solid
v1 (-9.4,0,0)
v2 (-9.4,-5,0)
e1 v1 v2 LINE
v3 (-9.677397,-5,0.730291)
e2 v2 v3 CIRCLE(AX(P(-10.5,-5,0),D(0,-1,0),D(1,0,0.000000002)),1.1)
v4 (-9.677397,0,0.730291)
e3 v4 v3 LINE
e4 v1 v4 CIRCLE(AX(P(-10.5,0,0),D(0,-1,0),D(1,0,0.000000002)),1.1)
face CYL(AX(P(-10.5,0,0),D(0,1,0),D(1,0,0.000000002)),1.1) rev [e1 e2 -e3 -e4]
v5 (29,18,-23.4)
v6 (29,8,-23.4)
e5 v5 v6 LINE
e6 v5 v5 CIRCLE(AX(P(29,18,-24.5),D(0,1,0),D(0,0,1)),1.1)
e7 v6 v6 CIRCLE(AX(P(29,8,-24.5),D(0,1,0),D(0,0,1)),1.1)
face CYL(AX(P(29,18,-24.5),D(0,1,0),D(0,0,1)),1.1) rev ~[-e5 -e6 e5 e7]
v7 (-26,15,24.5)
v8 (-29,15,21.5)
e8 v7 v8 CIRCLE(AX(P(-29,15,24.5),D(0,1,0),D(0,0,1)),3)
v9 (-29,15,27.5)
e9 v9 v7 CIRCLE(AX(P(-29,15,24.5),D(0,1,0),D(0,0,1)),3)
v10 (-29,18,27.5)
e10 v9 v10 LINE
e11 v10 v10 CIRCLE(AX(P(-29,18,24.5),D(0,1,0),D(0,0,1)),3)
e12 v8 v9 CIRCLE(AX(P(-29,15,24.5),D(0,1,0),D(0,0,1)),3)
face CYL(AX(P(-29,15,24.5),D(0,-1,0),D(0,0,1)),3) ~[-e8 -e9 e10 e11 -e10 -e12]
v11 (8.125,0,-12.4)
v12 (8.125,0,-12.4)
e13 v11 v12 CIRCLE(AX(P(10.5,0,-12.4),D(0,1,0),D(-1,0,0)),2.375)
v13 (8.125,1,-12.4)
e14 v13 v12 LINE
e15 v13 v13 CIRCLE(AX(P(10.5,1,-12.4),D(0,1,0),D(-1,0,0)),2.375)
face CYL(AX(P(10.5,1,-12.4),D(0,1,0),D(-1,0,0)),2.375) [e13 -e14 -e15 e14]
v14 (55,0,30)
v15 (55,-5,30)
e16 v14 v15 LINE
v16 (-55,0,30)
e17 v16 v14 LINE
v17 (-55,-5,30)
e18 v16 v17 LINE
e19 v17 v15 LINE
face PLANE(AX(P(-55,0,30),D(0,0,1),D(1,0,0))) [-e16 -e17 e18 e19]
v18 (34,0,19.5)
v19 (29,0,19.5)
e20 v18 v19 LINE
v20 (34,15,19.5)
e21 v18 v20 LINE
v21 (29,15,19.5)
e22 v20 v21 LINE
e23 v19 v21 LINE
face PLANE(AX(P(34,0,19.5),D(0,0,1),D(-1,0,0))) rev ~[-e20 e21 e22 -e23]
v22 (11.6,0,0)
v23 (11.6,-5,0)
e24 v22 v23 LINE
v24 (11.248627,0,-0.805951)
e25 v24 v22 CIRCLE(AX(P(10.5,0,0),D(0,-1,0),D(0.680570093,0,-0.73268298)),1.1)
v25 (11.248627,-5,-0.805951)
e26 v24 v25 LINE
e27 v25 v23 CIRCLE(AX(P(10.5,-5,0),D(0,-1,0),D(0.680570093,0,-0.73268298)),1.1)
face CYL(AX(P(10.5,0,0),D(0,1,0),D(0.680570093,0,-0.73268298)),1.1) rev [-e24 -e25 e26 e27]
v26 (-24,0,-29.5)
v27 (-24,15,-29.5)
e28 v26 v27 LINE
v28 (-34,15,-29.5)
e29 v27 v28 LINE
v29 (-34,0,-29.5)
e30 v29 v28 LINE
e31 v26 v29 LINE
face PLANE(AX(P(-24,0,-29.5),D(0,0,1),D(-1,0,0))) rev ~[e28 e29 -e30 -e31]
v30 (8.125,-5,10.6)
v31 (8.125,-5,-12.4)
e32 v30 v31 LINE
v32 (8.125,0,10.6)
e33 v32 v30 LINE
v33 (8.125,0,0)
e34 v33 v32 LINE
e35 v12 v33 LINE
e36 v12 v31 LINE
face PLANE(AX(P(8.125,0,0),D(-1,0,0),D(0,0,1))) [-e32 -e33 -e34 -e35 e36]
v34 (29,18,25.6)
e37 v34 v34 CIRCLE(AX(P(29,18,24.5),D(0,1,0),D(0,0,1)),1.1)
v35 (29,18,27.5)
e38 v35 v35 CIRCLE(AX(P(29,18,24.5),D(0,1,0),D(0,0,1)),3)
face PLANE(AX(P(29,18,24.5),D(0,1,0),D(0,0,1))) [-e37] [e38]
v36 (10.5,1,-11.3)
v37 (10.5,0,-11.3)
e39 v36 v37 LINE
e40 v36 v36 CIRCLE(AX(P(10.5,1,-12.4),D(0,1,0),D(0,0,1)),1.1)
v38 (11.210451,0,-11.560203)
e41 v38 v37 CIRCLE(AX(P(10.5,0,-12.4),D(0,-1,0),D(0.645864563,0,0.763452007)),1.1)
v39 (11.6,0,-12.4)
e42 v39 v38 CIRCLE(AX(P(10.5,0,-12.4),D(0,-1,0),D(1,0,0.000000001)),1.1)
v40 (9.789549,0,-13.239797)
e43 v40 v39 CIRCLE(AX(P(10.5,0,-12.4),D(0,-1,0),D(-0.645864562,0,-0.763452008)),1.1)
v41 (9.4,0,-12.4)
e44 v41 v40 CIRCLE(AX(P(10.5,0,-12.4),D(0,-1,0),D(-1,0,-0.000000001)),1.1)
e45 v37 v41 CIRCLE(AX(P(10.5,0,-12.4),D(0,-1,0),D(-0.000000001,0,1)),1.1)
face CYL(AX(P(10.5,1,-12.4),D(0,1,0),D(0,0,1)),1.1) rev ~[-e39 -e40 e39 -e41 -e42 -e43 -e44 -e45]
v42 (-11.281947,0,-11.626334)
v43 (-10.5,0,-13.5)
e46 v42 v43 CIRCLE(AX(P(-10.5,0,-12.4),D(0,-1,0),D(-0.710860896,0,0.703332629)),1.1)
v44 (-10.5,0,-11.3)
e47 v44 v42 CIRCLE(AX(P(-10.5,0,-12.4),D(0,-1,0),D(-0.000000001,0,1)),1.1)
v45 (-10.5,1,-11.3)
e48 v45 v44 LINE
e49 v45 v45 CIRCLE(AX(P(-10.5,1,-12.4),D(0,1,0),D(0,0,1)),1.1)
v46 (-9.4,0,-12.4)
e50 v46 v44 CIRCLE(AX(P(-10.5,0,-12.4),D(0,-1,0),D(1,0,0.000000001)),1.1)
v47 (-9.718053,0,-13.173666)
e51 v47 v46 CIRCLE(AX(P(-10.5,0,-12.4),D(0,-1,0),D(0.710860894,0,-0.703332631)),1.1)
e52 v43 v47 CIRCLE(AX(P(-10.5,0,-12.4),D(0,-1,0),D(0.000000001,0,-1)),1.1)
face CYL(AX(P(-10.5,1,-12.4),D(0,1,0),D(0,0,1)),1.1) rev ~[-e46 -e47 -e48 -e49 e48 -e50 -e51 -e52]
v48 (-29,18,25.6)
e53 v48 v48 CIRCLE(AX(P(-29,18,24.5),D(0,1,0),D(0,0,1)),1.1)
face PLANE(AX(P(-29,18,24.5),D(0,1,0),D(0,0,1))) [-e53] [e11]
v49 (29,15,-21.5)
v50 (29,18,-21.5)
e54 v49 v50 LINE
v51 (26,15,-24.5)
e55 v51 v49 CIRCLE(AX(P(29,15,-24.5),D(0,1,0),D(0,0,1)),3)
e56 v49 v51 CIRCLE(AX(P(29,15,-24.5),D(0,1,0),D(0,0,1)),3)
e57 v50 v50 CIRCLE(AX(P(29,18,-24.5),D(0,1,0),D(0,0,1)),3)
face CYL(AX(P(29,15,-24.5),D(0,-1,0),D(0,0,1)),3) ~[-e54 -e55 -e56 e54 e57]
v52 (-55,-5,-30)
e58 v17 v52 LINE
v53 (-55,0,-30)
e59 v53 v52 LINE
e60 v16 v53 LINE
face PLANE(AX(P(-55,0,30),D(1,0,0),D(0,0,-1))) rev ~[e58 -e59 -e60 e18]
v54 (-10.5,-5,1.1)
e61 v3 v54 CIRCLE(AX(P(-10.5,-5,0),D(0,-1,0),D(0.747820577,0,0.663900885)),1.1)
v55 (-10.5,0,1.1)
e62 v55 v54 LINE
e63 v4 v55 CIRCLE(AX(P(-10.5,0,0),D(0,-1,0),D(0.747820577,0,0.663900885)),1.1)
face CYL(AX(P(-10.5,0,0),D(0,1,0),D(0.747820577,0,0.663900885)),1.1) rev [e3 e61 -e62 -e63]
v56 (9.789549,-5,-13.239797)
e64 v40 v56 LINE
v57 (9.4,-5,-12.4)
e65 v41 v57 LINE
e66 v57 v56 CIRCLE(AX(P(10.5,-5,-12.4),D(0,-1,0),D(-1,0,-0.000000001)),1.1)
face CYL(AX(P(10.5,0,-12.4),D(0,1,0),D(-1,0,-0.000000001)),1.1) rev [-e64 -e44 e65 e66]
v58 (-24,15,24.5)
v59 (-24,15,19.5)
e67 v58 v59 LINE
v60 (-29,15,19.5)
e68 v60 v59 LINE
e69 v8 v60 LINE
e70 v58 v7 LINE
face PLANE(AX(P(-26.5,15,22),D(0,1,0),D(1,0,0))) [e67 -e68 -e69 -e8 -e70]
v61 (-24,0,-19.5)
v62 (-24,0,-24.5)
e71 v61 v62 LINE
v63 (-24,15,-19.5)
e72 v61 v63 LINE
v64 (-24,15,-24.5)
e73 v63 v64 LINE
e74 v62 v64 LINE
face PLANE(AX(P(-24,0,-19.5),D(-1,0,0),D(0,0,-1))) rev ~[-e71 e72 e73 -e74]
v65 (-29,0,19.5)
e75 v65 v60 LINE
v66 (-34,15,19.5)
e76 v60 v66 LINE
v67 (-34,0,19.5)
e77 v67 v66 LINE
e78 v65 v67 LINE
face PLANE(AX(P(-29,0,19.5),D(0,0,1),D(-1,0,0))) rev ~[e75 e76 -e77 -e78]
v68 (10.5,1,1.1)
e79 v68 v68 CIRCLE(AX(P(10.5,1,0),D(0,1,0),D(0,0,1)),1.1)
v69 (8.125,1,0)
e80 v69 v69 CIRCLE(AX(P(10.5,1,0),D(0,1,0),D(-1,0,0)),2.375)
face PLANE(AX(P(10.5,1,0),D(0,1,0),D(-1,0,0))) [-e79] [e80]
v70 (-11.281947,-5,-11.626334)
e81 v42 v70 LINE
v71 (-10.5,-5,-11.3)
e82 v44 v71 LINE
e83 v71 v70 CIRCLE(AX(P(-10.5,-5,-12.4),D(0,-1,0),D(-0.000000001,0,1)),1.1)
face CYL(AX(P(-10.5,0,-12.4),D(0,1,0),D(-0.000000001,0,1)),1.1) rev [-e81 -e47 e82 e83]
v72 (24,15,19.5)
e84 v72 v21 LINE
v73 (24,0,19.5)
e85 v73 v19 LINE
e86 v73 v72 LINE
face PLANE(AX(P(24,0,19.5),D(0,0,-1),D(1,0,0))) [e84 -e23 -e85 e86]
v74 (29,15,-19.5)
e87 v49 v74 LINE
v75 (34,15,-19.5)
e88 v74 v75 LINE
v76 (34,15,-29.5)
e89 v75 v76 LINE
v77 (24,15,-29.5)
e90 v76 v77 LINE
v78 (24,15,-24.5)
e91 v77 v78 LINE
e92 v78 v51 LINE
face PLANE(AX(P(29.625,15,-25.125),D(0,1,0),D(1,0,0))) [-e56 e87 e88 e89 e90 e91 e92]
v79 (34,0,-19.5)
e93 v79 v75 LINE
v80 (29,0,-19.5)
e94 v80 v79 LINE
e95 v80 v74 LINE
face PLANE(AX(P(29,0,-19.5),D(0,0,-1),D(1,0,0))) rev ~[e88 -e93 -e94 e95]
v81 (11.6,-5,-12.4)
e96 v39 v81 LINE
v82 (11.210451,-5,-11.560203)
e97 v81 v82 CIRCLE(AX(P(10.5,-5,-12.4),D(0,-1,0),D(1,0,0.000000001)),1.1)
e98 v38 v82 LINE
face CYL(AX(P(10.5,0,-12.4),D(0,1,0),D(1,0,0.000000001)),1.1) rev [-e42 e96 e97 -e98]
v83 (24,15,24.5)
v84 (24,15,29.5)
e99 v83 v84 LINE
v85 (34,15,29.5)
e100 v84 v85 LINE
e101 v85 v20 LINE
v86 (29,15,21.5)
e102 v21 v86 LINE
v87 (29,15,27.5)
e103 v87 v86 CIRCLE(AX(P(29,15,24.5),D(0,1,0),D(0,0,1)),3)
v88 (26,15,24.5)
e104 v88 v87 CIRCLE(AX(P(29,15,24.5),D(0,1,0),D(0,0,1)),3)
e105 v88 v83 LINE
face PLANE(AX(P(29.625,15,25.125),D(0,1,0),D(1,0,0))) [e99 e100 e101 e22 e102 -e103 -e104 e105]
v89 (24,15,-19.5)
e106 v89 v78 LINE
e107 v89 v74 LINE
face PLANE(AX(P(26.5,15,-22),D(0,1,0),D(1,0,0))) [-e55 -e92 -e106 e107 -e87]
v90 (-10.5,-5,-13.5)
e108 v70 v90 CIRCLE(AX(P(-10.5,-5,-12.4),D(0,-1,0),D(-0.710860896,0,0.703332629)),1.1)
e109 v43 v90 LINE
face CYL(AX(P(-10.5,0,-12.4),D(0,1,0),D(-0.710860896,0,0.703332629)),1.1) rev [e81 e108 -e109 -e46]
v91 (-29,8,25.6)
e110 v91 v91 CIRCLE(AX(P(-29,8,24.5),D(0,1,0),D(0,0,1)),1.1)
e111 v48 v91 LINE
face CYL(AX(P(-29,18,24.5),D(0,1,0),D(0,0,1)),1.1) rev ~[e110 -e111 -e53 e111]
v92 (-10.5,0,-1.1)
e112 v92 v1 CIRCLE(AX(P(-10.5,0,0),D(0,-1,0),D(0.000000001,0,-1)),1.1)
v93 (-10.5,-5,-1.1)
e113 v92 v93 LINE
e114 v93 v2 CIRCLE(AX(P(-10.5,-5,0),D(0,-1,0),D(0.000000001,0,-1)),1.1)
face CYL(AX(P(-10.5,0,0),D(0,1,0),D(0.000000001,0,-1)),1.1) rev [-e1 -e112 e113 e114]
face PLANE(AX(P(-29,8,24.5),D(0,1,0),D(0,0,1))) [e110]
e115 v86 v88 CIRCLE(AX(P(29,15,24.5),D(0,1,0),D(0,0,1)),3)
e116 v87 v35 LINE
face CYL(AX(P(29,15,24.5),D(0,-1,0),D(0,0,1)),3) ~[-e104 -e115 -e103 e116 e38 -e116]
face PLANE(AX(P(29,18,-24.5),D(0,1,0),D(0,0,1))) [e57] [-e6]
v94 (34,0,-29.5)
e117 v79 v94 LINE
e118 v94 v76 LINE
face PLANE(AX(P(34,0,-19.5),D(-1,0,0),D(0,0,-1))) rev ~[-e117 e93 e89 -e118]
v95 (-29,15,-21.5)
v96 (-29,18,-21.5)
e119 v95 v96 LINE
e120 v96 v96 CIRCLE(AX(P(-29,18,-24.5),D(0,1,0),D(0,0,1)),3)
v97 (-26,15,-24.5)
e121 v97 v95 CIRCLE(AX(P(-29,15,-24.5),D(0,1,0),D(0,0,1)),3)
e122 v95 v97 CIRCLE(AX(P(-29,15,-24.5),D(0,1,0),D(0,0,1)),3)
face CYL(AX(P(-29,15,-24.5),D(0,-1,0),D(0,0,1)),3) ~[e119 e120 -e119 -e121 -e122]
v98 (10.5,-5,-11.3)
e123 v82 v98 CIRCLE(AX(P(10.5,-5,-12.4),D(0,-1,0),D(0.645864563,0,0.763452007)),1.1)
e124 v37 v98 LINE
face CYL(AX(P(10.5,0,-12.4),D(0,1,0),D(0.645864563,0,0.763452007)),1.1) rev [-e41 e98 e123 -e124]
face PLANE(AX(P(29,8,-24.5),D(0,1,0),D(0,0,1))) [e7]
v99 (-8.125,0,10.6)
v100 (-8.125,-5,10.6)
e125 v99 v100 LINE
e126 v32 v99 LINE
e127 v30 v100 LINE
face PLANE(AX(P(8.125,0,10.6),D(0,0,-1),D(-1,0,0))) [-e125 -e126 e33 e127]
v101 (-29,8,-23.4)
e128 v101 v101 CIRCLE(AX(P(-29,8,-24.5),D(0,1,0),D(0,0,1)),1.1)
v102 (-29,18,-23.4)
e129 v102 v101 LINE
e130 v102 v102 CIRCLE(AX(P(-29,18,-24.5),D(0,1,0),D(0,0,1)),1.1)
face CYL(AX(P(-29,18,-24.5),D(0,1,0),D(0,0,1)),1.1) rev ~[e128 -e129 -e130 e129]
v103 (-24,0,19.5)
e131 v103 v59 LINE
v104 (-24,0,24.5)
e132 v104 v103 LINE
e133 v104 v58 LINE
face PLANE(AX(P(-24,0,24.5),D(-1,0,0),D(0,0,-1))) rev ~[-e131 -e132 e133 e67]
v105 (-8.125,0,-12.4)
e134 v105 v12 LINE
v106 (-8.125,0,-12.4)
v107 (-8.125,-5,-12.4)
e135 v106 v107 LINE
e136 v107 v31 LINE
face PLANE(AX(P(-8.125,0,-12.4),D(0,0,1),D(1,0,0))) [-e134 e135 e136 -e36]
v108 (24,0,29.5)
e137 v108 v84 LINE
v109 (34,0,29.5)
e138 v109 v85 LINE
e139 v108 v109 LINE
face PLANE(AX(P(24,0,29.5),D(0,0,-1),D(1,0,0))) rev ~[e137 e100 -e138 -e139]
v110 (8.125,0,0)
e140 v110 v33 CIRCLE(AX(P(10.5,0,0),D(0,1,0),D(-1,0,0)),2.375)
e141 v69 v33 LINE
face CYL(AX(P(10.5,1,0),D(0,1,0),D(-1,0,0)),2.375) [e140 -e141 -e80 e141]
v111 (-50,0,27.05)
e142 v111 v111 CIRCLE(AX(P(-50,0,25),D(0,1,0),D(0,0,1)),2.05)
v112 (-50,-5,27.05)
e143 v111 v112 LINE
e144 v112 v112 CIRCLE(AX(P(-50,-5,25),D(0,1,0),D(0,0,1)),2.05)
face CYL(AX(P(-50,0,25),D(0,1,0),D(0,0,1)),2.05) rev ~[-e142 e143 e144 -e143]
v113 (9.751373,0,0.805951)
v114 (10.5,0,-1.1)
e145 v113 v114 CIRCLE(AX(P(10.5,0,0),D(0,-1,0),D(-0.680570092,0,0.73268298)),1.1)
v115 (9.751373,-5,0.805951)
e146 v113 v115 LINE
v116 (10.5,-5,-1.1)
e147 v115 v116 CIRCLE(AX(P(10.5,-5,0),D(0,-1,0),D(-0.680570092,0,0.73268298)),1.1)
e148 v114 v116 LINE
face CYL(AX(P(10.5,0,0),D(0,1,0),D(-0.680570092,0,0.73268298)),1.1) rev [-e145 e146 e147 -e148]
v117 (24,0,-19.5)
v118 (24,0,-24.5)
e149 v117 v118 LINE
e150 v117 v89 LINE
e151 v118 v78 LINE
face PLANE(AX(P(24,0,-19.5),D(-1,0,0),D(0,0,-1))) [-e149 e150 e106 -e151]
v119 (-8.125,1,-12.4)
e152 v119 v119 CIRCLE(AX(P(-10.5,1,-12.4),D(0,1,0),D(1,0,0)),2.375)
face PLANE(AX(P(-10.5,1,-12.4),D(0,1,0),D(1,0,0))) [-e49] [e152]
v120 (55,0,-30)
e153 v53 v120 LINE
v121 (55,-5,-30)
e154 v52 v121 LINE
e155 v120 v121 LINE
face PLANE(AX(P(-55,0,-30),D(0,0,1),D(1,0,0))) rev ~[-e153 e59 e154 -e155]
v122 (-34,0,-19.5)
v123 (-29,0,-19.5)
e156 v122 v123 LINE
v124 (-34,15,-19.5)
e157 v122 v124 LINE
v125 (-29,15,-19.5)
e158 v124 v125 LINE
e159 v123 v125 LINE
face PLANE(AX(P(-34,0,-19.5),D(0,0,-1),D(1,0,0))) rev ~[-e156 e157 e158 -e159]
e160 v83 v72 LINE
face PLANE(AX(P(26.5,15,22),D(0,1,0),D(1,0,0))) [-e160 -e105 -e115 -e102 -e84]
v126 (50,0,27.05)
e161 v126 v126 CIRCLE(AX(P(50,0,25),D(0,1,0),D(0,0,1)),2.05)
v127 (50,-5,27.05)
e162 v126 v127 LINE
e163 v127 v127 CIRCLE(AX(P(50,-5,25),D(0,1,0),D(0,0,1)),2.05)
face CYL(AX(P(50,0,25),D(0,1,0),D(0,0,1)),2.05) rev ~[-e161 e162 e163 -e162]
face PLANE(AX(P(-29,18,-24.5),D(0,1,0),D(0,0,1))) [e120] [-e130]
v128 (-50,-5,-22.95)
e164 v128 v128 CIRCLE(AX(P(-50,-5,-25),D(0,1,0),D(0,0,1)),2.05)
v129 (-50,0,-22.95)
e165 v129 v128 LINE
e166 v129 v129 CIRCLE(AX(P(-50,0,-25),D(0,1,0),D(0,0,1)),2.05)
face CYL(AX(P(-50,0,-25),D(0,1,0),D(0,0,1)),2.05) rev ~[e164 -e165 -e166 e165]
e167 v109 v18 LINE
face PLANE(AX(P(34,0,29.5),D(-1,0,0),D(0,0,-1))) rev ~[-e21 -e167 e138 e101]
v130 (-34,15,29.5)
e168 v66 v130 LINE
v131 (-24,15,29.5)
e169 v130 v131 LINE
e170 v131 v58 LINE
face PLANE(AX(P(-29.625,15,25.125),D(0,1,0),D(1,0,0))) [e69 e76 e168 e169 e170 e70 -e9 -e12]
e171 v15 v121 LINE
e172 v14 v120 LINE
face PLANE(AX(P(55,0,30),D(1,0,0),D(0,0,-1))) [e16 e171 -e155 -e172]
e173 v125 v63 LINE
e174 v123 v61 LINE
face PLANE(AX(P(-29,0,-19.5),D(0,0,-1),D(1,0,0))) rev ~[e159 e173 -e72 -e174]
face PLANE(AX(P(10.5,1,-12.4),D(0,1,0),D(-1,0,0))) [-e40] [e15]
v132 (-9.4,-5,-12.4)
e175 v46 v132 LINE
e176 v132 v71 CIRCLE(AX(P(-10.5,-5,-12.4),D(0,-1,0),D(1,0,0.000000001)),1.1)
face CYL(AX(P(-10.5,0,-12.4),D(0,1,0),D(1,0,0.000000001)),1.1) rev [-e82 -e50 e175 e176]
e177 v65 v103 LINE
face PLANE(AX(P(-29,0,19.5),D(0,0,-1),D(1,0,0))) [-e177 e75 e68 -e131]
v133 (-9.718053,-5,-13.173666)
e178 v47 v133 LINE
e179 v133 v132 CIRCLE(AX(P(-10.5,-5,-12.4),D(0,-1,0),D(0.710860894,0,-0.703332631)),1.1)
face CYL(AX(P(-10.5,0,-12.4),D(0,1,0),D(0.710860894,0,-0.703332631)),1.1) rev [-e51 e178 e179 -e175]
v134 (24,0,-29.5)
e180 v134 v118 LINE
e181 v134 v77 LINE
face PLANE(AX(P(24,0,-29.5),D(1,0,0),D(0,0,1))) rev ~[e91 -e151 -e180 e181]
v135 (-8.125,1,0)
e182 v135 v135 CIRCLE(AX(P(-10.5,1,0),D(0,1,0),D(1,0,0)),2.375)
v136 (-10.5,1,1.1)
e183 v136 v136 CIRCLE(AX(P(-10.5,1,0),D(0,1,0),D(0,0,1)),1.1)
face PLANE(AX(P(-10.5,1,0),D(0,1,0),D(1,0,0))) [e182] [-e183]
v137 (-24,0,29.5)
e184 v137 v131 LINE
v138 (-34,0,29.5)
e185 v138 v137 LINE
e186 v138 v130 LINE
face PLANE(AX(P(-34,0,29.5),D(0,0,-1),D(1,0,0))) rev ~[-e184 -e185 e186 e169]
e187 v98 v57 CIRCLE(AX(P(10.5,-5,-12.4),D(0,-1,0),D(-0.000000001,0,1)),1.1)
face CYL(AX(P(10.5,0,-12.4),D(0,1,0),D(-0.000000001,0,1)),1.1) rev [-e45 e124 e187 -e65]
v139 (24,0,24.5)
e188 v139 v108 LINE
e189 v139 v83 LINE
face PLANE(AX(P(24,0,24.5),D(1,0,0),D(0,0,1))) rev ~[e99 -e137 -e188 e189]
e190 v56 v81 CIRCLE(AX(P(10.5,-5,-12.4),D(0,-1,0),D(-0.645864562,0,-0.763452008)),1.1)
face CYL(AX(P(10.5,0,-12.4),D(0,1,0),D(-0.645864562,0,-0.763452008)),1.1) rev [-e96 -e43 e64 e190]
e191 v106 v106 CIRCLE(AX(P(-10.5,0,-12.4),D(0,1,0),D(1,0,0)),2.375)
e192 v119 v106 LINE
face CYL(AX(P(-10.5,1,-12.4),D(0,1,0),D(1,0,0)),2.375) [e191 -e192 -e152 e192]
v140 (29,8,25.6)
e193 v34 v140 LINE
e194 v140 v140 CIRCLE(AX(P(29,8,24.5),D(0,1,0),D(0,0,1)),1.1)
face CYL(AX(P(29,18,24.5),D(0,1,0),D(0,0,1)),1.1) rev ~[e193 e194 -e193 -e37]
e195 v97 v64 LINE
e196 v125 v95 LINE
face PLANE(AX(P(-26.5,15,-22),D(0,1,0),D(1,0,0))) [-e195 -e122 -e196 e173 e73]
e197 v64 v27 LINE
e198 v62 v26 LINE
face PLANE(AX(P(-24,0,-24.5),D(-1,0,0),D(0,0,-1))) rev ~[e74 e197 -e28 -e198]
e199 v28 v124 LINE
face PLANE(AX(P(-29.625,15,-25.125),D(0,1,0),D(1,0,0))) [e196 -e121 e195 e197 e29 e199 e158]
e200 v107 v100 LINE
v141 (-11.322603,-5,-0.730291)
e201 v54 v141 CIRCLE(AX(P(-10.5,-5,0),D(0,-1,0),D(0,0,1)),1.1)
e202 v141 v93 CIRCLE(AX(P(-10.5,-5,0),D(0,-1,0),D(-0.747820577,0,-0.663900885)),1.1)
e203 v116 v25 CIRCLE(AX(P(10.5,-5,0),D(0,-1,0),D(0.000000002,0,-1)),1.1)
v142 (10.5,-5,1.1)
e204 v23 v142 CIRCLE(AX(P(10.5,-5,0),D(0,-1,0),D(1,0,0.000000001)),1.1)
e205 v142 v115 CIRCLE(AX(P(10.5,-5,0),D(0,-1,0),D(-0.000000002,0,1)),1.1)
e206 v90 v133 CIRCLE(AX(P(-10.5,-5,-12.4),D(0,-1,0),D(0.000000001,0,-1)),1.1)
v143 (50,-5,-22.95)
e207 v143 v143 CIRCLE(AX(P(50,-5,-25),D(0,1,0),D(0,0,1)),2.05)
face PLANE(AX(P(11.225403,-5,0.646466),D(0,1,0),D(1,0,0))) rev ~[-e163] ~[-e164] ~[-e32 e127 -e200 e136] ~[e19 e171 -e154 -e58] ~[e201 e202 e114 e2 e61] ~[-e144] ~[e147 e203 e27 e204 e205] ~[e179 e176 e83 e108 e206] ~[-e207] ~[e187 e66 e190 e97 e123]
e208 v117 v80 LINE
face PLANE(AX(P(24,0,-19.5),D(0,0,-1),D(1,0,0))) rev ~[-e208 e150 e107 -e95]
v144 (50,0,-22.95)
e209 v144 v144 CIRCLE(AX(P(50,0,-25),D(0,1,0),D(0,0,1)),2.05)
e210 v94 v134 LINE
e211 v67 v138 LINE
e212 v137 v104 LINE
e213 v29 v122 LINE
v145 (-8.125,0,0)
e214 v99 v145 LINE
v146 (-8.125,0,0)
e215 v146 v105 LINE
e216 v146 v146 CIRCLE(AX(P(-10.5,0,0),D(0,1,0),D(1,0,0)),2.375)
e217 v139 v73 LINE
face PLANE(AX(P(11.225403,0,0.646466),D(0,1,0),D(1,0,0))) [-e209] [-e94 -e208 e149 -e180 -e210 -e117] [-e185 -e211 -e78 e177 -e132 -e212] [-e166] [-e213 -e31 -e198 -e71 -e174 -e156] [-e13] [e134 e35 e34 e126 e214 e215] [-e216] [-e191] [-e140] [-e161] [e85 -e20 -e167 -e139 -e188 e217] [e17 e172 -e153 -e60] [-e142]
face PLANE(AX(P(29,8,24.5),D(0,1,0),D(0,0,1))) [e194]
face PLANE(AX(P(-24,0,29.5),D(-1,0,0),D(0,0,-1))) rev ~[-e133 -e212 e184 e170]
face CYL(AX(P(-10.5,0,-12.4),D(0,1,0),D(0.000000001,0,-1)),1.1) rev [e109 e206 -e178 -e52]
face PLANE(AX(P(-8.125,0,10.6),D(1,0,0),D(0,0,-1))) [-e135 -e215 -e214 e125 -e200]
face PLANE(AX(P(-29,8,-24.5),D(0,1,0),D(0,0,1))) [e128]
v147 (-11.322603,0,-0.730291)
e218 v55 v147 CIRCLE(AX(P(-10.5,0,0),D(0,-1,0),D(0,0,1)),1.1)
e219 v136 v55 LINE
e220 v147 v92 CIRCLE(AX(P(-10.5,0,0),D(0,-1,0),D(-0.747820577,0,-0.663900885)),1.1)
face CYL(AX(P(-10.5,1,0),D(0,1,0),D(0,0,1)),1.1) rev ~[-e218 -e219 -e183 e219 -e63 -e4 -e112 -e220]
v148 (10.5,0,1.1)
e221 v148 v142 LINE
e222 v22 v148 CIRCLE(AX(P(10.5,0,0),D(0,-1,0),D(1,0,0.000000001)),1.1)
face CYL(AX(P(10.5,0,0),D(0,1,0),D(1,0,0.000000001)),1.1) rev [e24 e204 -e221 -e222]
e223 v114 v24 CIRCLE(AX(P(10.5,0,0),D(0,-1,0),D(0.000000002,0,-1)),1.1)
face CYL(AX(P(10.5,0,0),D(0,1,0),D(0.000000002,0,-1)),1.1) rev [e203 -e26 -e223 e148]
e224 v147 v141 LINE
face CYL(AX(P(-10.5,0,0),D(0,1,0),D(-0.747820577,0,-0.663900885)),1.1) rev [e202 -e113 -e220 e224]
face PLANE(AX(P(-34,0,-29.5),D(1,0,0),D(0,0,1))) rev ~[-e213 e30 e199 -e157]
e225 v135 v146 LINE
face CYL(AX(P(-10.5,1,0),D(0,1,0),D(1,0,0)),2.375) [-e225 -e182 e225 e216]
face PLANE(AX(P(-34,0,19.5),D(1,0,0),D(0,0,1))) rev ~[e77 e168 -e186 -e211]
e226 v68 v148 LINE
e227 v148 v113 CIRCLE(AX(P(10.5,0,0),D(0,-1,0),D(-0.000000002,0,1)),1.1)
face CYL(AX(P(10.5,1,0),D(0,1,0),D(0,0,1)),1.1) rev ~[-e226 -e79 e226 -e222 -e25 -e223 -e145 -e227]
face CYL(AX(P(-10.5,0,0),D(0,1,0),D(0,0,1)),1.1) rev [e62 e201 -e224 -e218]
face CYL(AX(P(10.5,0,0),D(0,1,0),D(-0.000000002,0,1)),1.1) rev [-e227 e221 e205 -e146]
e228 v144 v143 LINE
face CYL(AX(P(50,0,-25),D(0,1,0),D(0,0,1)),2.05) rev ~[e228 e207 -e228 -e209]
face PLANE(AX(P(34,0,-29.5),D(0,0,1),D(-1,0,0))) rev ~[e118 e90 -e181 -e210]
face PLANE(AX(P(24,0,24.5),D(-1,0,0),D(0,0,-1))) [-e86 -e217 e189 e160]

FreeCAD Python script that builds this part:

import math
import FreeCAD as App
import Part
import Sketcher
from FreeCAD import Vector
Q = App.Units.Quantity


def add_polygon(sketch, points):
    """Adds a closed chain of lines whose ends are joined by coincident constraints."""
    first, n = sketch.GeometryCount, len(points)
    for a, b in zip(points, points[1:] + points[:1]):
        sketch.addGeometry(Part.LineSegment(App.Vector(*a, 0), App.Vector(*b, 0)), False)
    for i in range(n):
        sketch.addConstraint(Sketcher.Constraint("Coincident", first + i, 2, first + (i + 1) % n, 1))

doc = App.newDocument("Part")
body = doc.addObject("PartDesign::Body", "Body")

# Sketch on XZ plane
sketch1 = body.newObject("Sketcher::SketchObject", "Sketch")
sketch1.AttachmentSupport = (doc.getObject("XZ_Plane"), [""])
sketch1.MapMode = "FlatFace"
add_polygon(sketch1, [(-55, -30), (-55, 30), (55, 30), (55, -30)])  # lines 0-3
add_polygon(sketch1, [(-8.1, 10.6), (-8.1, -12.4), (8.1, -12.4), (8.1, 10.6)])  # lines 4-7
sketch1.addGeometry(Part.ArcOfCircle(Part.Circle(Vector(-10.5, 0, 0), Vector(0, 0, 1), 1.1), math.radians(-138), math.radians(-90)), False)  # 8
sketch1.addGeometry(Part.ArcOfCircle(Part.Circle(Vector(-10.5, 0, 0), Vector(0, 0, 1), 1.1), math.radians(-90), math.radians(0)), False)  # 9
sketch1.addGeometry(Part.ArcOfCircle(Part.Circle(Vector(-10.5, 0, 0), Vector(0, 0, 1), 1.1), math.radians(0), math.radians(42)), False)  # 10
sketch1.addGeometry(Part.ArcOfCircle(Part.Circle(Vector(-10.5, 0, 0), Vector(0, 0, 1), 1.1), math.radians(42), math.radians(90)), False)  # 11
sketch1.addGeometry(Part.ArcOfCircle(Part.Circle(Vector(-10.5, 0, 0), Vector(0, 0, 1), 1.1), math.radians(90), math.radians(222)), False)  # 12
sketch1.addGeometry(Part.ArcOfCircle(Part.Circle(Vector(10.5, 0, 0), Vector(0, 0, 1), 1.1), math.radians(133), math.radians(270)), False)  # 13
sketch1.addGeometry(Part.ArcOfCircle(Part.Circle(Vector(10.5, 0, 0), Vector(0, 0, 1), 1.1), math.radians(-90), math.radians(-47)), False)  # 14
sketch1.addGeometry(Part.ArcOfCircle(Part.Circle(Vector(10.5, 0, 0), Vector(0, 0, 1), 1.1), math.radians(-47), math.radians(0)), False)  # 15
sketch1.addGeometry(Part.ArcOfCircle(Part.Circle(Vector(10.5, 0, 0), Vector(0, 0, 1), 1.1), math.radians(0), math.radians(90)), False)  # 16
sketch1.addGeometry(Part.ArcOfCircle(Part.Circle(Vector(10.5, 0, 0), Vector(0, 0, 1), 1.1), math.radians(90), math.radians(133)), False)  # 17
sketch1.addGeometry(Part.ArcOfCircle(Part.Circle(Vector(10.5, -12.4, 0), Vector(0, 0, 1), 1.1), math.radians(50), math.radians(90)), False)  # 18
sketch1.addGeometry(Part.ArcOfCircle(Part.Circle(Vector(10.5, -12.4, 0), Vector(0, 0, 1), 1.1), math.radians(90), math.radians(180)), False)  # 19
sketch1.addGeometry(Part.ArcOfCircle(Part.Circle(Vector(10.5, -12.4, 0), Vector(0, 0, 1), 1.1), math.radians(-180), math.radians(-130)), False)  # 20
sketch1.addGeometry(Part.ArcOfCircle(Part.Circle(Vector(10.5, -12.4, 0), Vector(0, 0, 1), 1.1), math.radians(-130), math.radians(0)), False)  # 21
sketch1.addGeometry(Part.ArcOfCircle(Part.Circle(Vector(10.5, -12.4, 0), Vector(0, 0, 1), 1.1), math.radians(0), math.radians(50)), False)  # 22
sketch1.addGeometry(Part.ArcOfCircle(Part.Circle(Vector(-10.5, -12.4, 0), Vector(0, 0, 1), 1.1), math.radians(-45), math.radians(0)), False)  # 23
sketch1.addGeometry(Part.ArcOfCircle(Part.Circle(Vector(-10.5, -12.4, 0), Vector(0, 0, 1), 1.1), math.radians(0), math.radians(90)), False)  # 24
sketch1.addGeometry(Part.ArcOfCircle(Part.Circle(Vector(-10.5, -12.4, 0), Vector(0, 0, 1), 1.1), math.radians(90), math.radians(135)), False)  # 25
sketch1.addGeometry(Part.ArcOfCircle(Part.Circle(Vector(-10.5, -12.4, 0), Vector(0, 0, 1), 1.1), math.radians(135), math.radians(270)), False)  # 26
sketch1.addGeometry(Part.ArcOfCircle(Part.Circle(Vector(-10.5, -12.4, 0), Vector(0, 0, 1), 1.1), math.radians(-90), math.radians(-45)), False)  # 27
sketch1.addConstraint([
    Sketcher.Constraint("Tangent", 8, 2, 9, 1),
    Sketcher.Constraint("Tangent", 9, 2, 10, 1),
    Sketcher.Constraint("Tangent", 10, 2, 11, 1),
    Sketcher.Constraint("Tangent", 11, 2, 12, 1),
    Sketcher.Constraint("Tangent", 12, 2, 8, 1),
    Sketcher.Constraint("Tangent", 13, 2, 14, 1),
    Sketcher.Constraint("Tangent", 14, 2, 15, 1),
    Sketcher.Constraint("Tangent", 15, 2, 16, 1),
    Sketcher.Constraint("Tangent", 16, 2, 17, 1),
    Sketcher.Constraint("Tangent", 17, 2, 13, 1),
    Sketcher.Constraint("Tangent", 18, 2, 19, 1),
    Sketcher.Constraint("Tangent", 19, 2, 20, 1),
    Sketcher.Constraint("Tangent", 20, 2, 21, 1),
    Sketcher.Constraint("Tangent", 21, 2, 22, 1),
    Sketcher.Constraint("Tangent", 22, 2, 18, 1),
    Sketcher.Constraint("Tangent", 23, 2, 24, 1),
    Sketcher.Constraint("Tangent", 24, 2, 25, 1),
    Sketcher.Constraint("Tangent", 25, 2, 26, 1),
    Sketcher.Constraint("Tangent", 26, 2, 27, 1),
    Sketcher.Constraint("Tangent", 27, 2, 23, 1),
    Sketcher.Constraint("Vertical", 0),
    Sketcher.Constraint("Horizontal", 1),
    Sketcher.Constraint("Vertical", 2),
    Sketcher.Constraint("Horizontal", 3),
    Sketcher.Constraint("Vertical", 4),
    Sketcher.Constraint("Horizontal", 5),
    Sketcher.Constraint("Vertical", 6),
    Sketcher.Constraint("Horizontal", 7),
    Sketcher.Constraint("Coincident", 10, 3, 8, 3),
    Sketcher.Constraint("Coincident", 15, 3, 13, 3),
    Sketcher.Constraint("Coincident", 20, 3, 18, 3),
    Sketcher.Constraint("Coincident", 25, 3, 23, 3),
    Sketcher.Constraint("Equal", 12, 13),
    Sketcher.Constraint("Equal", 17, 18),
    Sketcher.Constraint("Equal", 22, 23),
    Sketcher.Constraint("Symmetric", 8, 3, 13, 3, -1, 1),
    Sketcher.Constraint("Symmetric", 0, 2, 2, 2, -1, 1),
    Sketcher.Constraint("Symmetric", 18, 3, 23, 3, -2),
    Sketcher.Constraint("Symmetric", 8, 2, 13, 2, -2),
    Sketcher.Constraint("PointOnObject", 9, 2, -1),
    Sketcher.Constraint("PointOnObject", 15, 2, -1),
    Sketcher.Constraint("Horizontal", 27, 3, 4, 2),
    Sketcher.Constraint("Horizontal", 5, 2, 19, 2),
    Sketcher.Constraint("Horizontal", 19, 2, 21, 2),
    Sketcher.Constraint("Horizontal", 21, 2, 23, 2),
    Sketcher.Constraint("Vertical", 17, 3, 18, 3),
    Sketcher.Constraint("Vertical", 27, 3, 8, 2),
    Sketcher.Constraint("Vertical", 8, 2, 11, 2),
    Sketcher.Constraint("Vertical", 13, 2, 16, 2),
    Sketcher.Constraint("Vertical", 16, 2, 18, 2),
    Sketcher.Constraint("Vertical", 11, 2, 24, 2),
    Sketcher.Constraint("Vertical", 24, 2, 26, 2),
    Sketcher.Constraint("Radius", 8, Q("1.1 mm")),
    Sketcher.Constraint("DistanceX", 1, 1, 1, 2, Q("110 mm")),
    Sketcher.Constraint("DistanceY", 0, 1, 0, 2, Q("60 mm")),
    Sketcher.Constraint("DistanceY", 4, 2, 4, 1, Q("23 mm")),
    Sketcher.Constraint("DistanceX", 8, 3, 13, 3, Q("21 mm")),
    Sketcher.Constraint("DistanceX", 5, 1, 5, 2, Q("16.25 mm")),
    Sketcher.Constraint("DistanceY", 18, 3, -1, 1, Q("12.4 mm")),
    Sketcher.Constraint("DistanceX", 4, 2, -1, 1, Q("8.125 mm")),
    Sketcher.Constraint("DistanceY", -1, 1, 10, 2, Q("0.730291 mm")),
    Sketcher.Constraint("DistanceY", 12, 2, -1, 1, Q("0.730291 mm")),
    Sketcher.Constraint("DistanceY", 14, 2, -1, 1, Q("0.805951 mm")),
    Sketcher.Constraint("DistanceY", -1, 1, 17, 2, Q("0.805951 mm")),
    Sketcher.Constraint("DistanceX", -1, 1, 20, 2, Q("9.789549 mm")),
    Sketcher.Constraint("DistanceX", -1, 1, 22, 2, Q("11.210451 mm")),
    Sketcher.Constraint("DistanceX", 25, 2, -1, 1, Q("11.281947 mm")),
    Sketcher.Constraint("DistanceX", 27, 2, -1, 1, Q("9.718053 mm")),
])
pad1 = body.newObject("PartDesign::Pad", "Pad")
pad1.Profile = sketch1
pad1.Length = 5

# Sketch on XZ plane
sketch2 = body.newObject("Sketcher::SketchObject", "Sketch001")
sketch2.AttachmentSupport = (doc.getObject("XZ_Plane"), [""])
sketch2.MapMode = "FlatFace"
sketch2.AttachmentOffset = App.Placement(Vector(0, 0, -1), App.Rotation())
sketch2.addGeometry([
    Part.Circle(Vector(-10.5, -12.4, 0), Vector(0, 0, 1), 2.4),  # 0
    Part.Circle(Vector(-10.5, -12.4, 0), Vector(0, 0, 1), 1.1),  # 1
    Part.Circle(Vector(10.5, -12.4, 0), Vector(0, 0, 1), 2.4),  # 2
    Part.Circle(Vector(10.5, -12.4, 0), Vector(0, 0, 1), 1.1),  # 3
    Part.Circle(Vector(10.5, 0, 0), Vector(0, 0, 1), 2.4),  # 4
    Part.Circle(Vector(10.5, 0, 0), Vector(0, 0, 1), 1.1),  # 5
    Part.Circle(Vector(-10.5, 0, 0), Vector(0, 0, 1), 2.4),  # 6
    Part.Circle(Vector(-10.5, 0, 0), Vector(0, 0, 1), 1.1),  # 7
], False)
sketch2.addConstraint([
    Sketcher.Constraint("Coincident", 1, 3, 0, 3),
    Sketcher.Constraint("Coincident", 3, 3, 2, 3),
    Sketcher.Constraint("Coincident", 5, 3, 4, 3),
    Sketcher.Constraint("Coincident", 7, 3, 6, 3),
    Sketcher.Constraint("Equal", 0, 2),
    Sketcher.Constraint("Equal", 1, 3),
    Sketcher.Constraint("Equal", 2, 4),
    Sketcher.Constraint("Equal", 3, 5),
    Sketcher.Constraint("Equal", 4, 6),
    Sketcher.Constraint("Equal", 5, 7),
    Sketcher.Constraint("Symmetric", 4, 3, 6, 3, -1, 1),
    Sketcher.Constraint("Symmetric", 0, 3, 2, 3, -2),
    Sketcher.Constraint("PointOnObject", 4, 3, -1),
    Sketcher.Constraint("Vertical", 3, 3, 4, 3),
    Sketcher.Constraint("Diameter", 1, Q("2.2 mm")),
    Sketcher.Constraint("Diameter", 0, Q("4.75 mm")),
    Sketcher.Constraint("DistanceX", 0, 3, 2, 3, Q("21 mm")),
    Sketcher.Constraint("DistanceY", 0, 3, -1, 1, Q("12.4 mm")),
])
pad2 = body.newObject("PartDesign::Pad", "Pad001")
pad2.Profile = sketch2
pad2.Length = 1

# Sketch on XZ plane
sketch3 = body.newObject("Sketcher::SketchObject", "Sketch002")
sketch3.AttachmentSupport = (doc.getObject("XZ_Plane"), [""])
sketch3.MapMode = "FlatFace"
add_polygon(sketch3, [(-29, 24), (-29, 20), (-34, 20), (-34, 30), (-24, 30), (-24, 24)])  # lines 0-5
add_polygon(sketch3, [(-29, 20), (-29, 24), (-24, 24), (-24, 20)])  # lines 6-9
add_polygon(sketch3, [(-34, -20), (-29, -20), (-29, -24), (-24, -24), (-24, -30), (-34, -30)])  # lines 10-15
add_polygon(sketch3, [(-29, -24), (-29, -20), (-24, -20), (-24, -24)])  # lines 16-19
add_polygon(sketch3, [(29, -24), (29, -20), (34, -20), (34, -30), (24, -30), (24, -24)])  # lines 20-25
add_polygon(sketch3, [(24, -24), (24, -20), (29, -20), (29, -24)])  # lines 26-29
add_polygon(sketch3, [(34, 20), (29, 20), (29, 24), (24, 24), (24, 30), (34, 30)])  # lines 30-35
add_polygon(sketch3, [(24, 20), (24, 24), (29, 24), (29, 20)])  # lines 36-39
sketch3.addConstraint([
    Sketcher.Constraint("Vertical", 0),
    Sketcher.Constraint("Horizontal", 1),
    Sketcher.Constraint("Vertical", 2),
    Sketcher.Constraint("Horizontal", 3),
    Sketcher.Constraint("Vertical", 4),
    Sketcher.Constraint("Horizontal", 5),
    Sketcher.Constraint("Vertical", 6),
    Sketcher.Constraint("Horizontal", 7),
    Sketcher.Constraint("Vertical", 8),
    Sketcher.Constraint("Horizontal", 9),
    Sketcher.Constraint("Horizontal", 10),
    Sketcher.Constraint("Vertical", 11),
    Sketcher.Constraint("Horizontal", 12),
    Sketcher.Constraint("Vertical", 13),
    Sketcher.Constraint("Horizontal", 14),
    Sketcher.Constraint("Vertical", 15),
    Sketcher.Constraint("Vertical", 16),
    Sketcher.Constraint("Horizontal", 17),
    Sketcher.Constraint("Vertical", 18),
    Sketcher.Constraint("Horizontal", 19),
    Sketcher.Constraint("Vertical", 20),
    Sketcher.Constraint("Horizontal", 21),
    Sketcher.Constraint("Vertical", 22),
    Sketcher.Constraint("Horizontal", 23),
    Sketcher.Constraint("Vertical", 24),
    Sketcher.Constraint("Horizontal", 25),
    Sketcher.Constraint("Vertical", 26),
    Sketcher.Constraint("Horizontal", 27),
    Sketcher.Constraint("Vertical", 28),
    Sketcher.Constraint("Horizontal", 29),
    Sketcher.Constraint("Horizontal", 30),
    Sketcher.Constraint("Vertical", 31),
    Sketcher.Constraint("Horizontal", 32),
    Sketcher.Constraint("Vertical", 33),
    Sketcher.Constraint("Horizontal", 34),
    Sketcher.Constraint("Vertical", 35),
    Sketcher.Constraint("Vertical", 36),
    Sketcher.Constraint("Horizontal", 37),
    Sketcher.Constraint("Vertical", 38),
    Sketcher.Constraint("Horizontal", 39),
    Sketcher.Constraint("Coincident", 6, 2, 5, 2),
    Sketcher.Constraint("Coincident", 16, 2, 10, 2),
    Sketcher.Constraint("Coincident", 18, 2, 12, 2),
    Sketcher.Constraint("Coincident", 27, 2, 20, 2),
    Sketcher.Constraint("Coincident", 29, 2, 24, 2),
    Sketcher.Constraint("Coincident", 36, 2, 32, 2),
    Sketcher.Constraint("Coincident", 38, 2, 30, 2),
    Sketcher.Constraint("Symmetric", 0, 2, 20, 2, -1, 1),
    Sketcher.Constraint("Symmetric", 2, 2, 22, 2, -1, 1),
    Sketcher.Constraint("Symmetric", 4, 2, 24, 2, -1, 1),
    Sketcher.Constraint("Symmetric", 8, 2, 26, 2, -1, 1),
    Sketcher.Constraint("Symmetric", 10, 2, 30, 2, -1, 1),
    Sketcher.Constraint("Symmetric", 12, 2, 32, 2, -1, 1),
    Sketcher.Constraint("Symmetric", 14, 2, 34, 2, -1, 1),
    Sketcher.Constraint("Symmetric", 10, 2, 20, 2, -2),
    Sketcher.Constraint("Symmetric", 14, 2, 22, 2, -2),
    Sketcher.Constraint("Symmetric", 12, 2, 24, 2, -2),
    Sketcher.Constraint("Equal", 1, 5),
    Sketcher.Constraint("Equal", 39, 0),
    Sketcher.Constraint("Equal", 34, 2),
    Sketcher.Constraint("DistanceX", 1, 2, 1, 1, Q("5 mm")),
    Sketcher.Constraint("DistanceX", 0, 2, -1, 1, Q("29 mm")),
    Sketcher.Constraint("DistanceY", 10, 2, 0, 2, Q("39 mm")),
])
pad3 = body.newObject("PartDesign::Pad", "Pad002")
pad3.Profile = sketch3
pad3.Length = 15
pad3.Reversed = True

# Sketch on XZ plane
sketch4 = body.newObject("Sketcher::SketchObject", "Sketch003")
sketch4.AttachmentSupport = (doc.getObject("XZ_Plane"), [""])
sketch4.MapMode = "FlatFace"
sketch4.AttachmentOffset = App.Placement(Vector(0, 0, -15), App.Rotation())
sketch4.addGeometry([
    Part.Circle(Vector(-29, 24.5, 0), Vector(0, 0, 1), 3),
    Part.Circle(Vector(-29, -24.5, 0), Vector(0, 0, 1), 3),
    Part.Circle(Vector(29, -24.5, 0), Vector(0, 0, 1), 3),
    Part.Circle(Vector(29, 24.5, 0), Vector(0, 0, 1), 3),
], False)
sketch4.addConstraint([
    Sketcher.Constraint("Equal", 0, 1),
    Sketcher.Constraint("Equal", 1, 2),
    Sketcher.Constraint("Equal", 2, 3),
    Sketcher.Constraint("Symmetric", 0, 3, 2, 3, -1, 1),
    Sketcher.Constraint("Symmetric", 1, 3, 3, 3, -1, 1),
    Sketcher.Constraint("Symmetric", 1, 3, 2, 3, -2),
    Sketcher.Constraint("Diameter", 0, Q("6 mm")),
    Sketcher.Constraint("DistanceX", 0, 3, -1, 1, Q("29 mm")),
    Sketcher.Constraint("DistanceY", 1, 3, 0, 3, Q("49 mm")),
])
pad4 = body.newObject("PartDesign::Pad", "Pad003")
pad4.Profile = sketch4
pad4.Length = 3
pad4.Reversed = True

# Sketch on XZ plane
sketch5 = body.newObject("Sketcher::SketchObject", "Sketch004")
sketch5.AttachmentSupport = (doc.getObject("XZ_Plane"), [""])
sketch5.MapMode = "FlatFace"
sketch5.AttachmentOffset = App.Placement(Vector(0, 0, -18), App.Rotation())
sketch5.addGeometry([
    Part.Circle(Vector(-29, -24.5, 0), Vector(0, 0, 1), 1.1),
    Part.Circle(Vector(29, -24.5, 0), Vector(0, 0, 1), 1.1),
    Part.Circle(Vector(-29, 24.5, 0), Vector(0, 0, 1), 1.1),
    Part.Circle(Vector(29, 24.5, 0), Vector(0, 0, 1), 1.1),
], False)
sketch5.addConstraint([
    Sketcher.Constraint("Equal", 0, 1),
    Sketcher.Constraint("Equal", 1, 2),
    Sketcher.Constraint("Equal", 2, 3),
    Sketcher.Constraint("Symmetric", 1, 3, 2, 3, -1, 1),
    Sketcher.Constraint("Symmetric", 0, 3, 3, 3, -1, 1),
    Sketcher.Constraint("Symmetric", 0, 3, 1, 3, -2),
    Sketcher.Constraint("Diameter", 0, Q("2.2 mm")),
    Sketcher.Constraint("DistanceX", 0, 3, -1, 1, Q("29 mm")),
    Sketcher.Constraint("DistanceY", 0, 3, 2, 3, Q("49 mm")),
])
pocket1 = body.newObject("PartDesign::Pocket", "Pocket")
pocket1.Profile = sketch5
pocket1.Length = 10
pocket1.Reversed = True

# Sketch on XZ plane
sketch6 = body.newObject("Sketcher::SketchObject", "Sketch005")
sketch6.AttachmentSupport = (doc.getObject("XZ_Plane"), [""])
sketch6.MapMode = "FlatFace"
sketch6.addGeometry([
    Part.Circle(Vector(-50, -25, 0), Vector(0, 0, 1), 2),
    Part.Circle(Vector(-50, 25, 0), Vector(0, 0, 1), 2),
    Part.Circle(Vector(50, 25, 0), Vector(0, 0, 1), 2),
    Part.Circle(Vector(50, -25, 0), Vector(0, 0, 1), 2),
], False)
sketch6.addConstraint([
    Sketcher.Constraint("Equal", 0, 1),
    Sketcher.Constraint("Equal", 1, 2),
    Sketcher.Constraint("Equal", 2, 3),
    Sketcher.Constraint("Symmetric", 0, 3, 2, 3, -1, 1),
    Sketcher.Constraint("Symmetric", 1, 3, 3, 3, -1, 1),
    Sketcher.Constraint("Symmetric", 1, 3, 2, 3, -2),
    Sketcher.Constraint("Diameter", 0, Q("4.1 mm")),
    Sketcher.Constraint("DistanceX", 0, 3, -1, 1, Q("50 mm")),
    Sketcher.Constraint("DistanceY", 0, 3, -1, 1, Q("25 mm")),
])
pocket2 = body.newObject("PartDesign::Pocket", "Pocket001")
pocket2.Profile = sketch6
pocket2.Length = 10
pocket2.Reversed = True

doc.recompute()
